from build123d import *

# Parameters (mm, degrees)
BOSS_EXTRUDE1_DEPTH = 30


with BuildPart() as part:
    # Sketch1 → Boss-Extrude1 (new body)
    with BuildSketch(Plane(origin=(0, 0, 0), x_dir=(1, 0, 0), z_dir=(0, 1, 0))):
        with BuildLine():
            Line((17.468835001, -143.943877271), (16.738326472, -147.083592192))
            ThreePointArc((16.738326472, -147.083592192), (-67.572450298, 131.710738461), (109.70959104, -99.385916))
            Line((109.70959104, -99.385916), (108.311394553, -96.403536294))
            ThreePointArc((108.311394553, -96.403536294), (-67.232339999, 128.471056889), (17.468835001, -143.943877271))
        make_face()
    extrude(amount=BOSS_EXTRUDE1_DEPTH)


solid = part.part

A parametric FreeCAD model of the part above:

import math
import FreeCAD as App
import Part
import Sketcher
Q = App.Units.Quantity

doc = App.newDocument("Part")
body = doc.addObject("PartDesign::Body", "Body")

sketch1 = doc.addObject("Sketcher::SketchObject", "Sketch")
body.addObject(sketch1)
sketch1.AttachmentSupport = (doc.XZ_Plane, [""])
sketch1.MapMode = "FlatFace"
sketch1.addGeometry([
    Part.LineSegment(App.Vector(16.7, 147.1, 0), App.Vector(17.5, 143.9, 0)),
    Part.ArcOfCircle(Part.Circle(App.Vector(0, 0, 0), App.Vector(0, 0, 1), 145), math.radians(83), math.radians(402)),
    Part.LineSegment(App.Vector(108.3, 96.4, 0), App.Vector(109.7, 99.4, 0)),
    Part.ArcOfCircle(Part.Circle(App.Vector(0, 0, 0), App.Vector(0, 0, 1), 148), math.radians(84), math.radians(402)),
], False)
sketch1.addConstraint([
    Sketcher.Constraint("Coincident", 0, 2, 1, 1),
    Sketcher.Constraint("Coincident", 1, 2, 2, 1),
    Sketcher.Constraint("Coincident", 2, 2, 3, 2),
    Sketcher.Constraint("Coincident", 3, 1, 0, 1),
    Sketcher.Constraint("Coincident", 1, 3, -1, 1),
    Sketcher.Constraint("Coincident", 3, 3, -1, 1),
    Sketcher.Constraint("Radius", 1, Q("145 mm")),
    Sketcher.Constraint("Radius", 3, Q("148.032951 mm")),
    Sketcher.Constraint("DistanceX", -1, 1, 2, 2, Q("109.709591 mm")),
    Sketcher.Constraint("DistanceX", 0, 2, 1, 2, Q("90.84256 mm")),
    Sketcher.Constraint("DistanceY", 1, 2, 0, 2, Q("47.540341 mm")),
    Sketcher.Constraint("DistanceX", 3, 1, 0, 2, Q("0.730509 mm")),
])
pad1 = doc.addObject("PartDesign::Pad", "Pad")
body.addObject(pad1)
pad1.Profile = sketch1
pad1.Length = 30
pad1.Reversed = True

doc.recompute()
